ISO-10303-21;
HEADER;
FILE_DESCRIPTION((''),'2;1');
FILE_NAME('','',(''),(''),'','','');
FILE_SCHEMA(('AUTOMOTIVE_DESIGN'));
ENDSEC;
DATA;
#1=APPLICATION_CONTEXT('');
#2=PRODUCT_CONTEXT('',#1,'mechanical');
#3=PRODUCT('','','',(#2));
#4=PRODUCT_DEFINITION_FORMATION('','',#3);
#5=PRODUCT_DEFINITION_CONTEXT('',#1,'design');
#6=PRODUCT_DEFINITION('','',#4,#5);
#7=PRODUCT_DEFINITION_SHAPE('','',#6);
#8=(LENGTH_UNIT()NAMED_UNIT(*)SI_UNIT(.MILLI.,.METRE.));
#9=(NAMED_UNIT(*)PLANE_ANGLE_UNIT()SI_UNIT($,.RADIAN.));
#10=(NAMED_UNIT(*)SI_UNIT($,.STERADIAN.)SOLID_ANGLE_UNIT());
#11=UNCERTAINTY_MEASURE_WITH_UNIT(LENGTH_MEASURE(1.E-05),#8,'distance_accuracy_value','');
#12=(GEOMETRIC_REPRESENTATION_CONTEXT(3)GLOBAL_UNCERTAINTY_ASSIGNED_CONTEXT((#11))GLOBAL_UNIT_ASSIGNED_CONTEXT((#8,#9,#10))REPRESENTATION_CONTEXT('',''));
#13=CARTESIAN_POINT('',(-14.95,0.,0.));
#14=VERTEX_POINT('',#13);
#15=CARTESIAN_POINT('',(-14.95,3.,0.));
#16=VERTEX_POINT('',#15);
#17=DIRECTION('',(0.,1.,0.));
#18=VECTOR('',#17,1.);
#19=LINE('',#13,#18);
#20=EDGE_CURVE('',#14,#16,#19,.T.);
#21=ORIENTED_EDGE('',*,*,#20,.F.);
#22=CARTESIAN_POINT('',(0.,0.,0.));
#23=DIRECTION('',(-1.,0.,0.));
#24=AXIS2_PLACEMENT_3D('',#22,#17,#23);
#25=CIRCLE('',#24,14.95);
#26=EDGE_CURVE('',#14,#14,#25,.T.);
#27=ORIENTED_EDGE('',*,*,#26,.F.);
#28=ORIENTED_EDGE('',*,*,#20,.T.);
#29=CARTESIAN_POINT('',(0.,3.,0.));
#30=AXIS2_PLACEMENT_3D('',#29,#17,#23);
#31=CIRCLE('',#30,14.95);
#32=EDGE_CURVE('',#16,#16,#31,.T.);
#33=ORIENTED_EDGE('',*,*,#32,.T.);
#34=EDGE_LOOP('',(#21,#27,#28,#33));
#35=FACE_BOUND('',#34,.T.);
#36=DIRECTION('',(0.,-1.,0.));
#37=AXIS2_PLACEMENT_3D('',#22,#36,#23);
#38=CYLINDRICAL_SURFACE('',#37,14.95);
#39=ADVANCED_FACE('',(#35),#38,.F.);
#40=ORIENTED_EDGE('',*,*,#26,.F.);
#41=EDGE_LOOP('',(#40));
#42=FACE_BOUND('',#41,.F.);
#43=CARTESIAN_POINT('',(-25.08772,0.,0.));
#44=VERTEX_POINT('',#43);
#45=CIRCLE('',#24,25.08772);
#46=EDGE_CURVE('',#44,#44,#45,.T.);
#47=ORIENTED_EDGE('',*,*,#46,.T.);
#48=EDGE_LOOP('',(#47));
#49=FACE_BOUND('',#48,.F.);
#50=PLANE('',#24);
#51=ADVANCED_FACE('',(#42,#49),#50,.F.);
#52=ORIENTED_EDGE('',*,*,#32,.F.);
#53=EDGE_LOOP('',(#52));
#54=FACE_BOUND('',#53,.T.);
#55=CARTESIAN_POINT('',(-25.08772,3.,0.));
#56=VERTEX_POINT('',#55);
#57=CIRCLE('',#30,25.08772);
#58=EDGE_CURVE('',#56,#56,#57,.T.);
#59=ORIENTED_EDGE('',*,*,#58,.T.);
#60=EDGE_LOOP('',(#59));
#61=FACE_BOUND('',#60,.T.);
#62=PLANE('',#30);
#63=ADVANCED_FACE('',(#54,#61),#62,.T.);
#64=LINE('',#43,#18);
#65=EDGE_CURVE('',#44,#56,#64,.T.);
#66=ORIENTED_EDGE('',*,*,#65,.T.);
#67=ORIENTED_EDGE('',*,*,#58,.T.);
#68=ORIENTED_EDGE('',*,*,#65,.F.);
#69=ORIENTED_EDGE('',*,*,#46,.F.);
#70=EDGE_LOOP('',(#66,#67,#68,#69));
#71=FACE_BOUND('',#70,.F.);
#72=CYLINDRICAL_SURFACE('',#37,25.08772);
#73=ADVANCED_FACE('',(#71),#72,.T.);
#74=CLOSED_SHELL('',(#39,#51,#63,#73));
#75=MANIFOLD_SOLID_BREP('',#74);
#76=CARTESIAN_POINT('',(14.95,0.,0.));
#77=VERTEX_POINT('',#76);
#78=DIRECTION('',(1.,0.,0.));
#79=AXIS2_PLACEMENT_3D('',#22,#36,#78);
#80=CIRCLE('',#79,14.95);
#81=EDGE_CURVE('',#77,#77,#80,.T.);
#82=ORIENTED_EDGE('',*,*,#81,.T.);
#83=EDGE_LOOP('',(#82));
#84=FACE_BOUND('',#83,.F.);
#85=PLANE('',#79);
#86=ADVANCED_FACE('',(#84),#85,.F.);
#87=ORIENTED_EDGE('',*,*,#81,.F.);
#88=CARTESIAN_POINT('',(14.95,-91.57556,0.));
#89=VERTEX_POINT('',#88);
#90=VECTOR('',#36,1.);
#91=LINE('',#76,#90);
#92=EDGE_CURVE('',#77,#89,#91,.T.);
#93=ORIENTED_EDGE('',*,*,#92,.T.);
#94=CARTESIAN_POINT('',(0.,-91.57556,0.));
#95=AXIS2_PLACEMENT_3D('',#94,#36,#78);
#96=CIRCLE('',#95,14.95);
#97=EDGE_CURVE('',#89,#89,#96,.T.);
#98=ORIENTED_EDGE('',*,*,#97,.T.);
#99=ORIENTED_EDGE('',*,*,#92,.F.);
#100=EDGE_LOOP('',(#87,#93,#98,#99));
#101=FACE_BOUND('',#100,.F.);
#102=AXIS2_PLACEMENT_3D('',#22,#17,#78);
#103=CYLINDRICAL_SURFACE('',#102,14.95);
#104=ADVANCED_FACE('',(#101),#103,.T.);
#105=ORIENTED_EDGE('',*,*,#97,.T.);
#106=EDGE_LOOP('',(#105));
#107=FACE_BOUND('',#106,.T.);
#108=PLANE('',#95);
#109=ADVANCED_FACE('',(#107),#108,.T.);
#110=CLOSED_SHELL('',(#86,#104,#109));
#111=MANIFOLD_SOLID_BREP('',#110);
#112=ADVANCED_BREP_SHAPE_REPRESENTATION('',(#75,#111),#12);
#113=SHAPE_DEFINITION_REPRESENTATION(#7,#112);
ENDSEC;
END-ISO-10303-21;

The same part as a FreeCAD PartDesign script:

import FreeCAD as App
import Part
import Sketcher
from FreeCAD import Vector
Q = App.Units.Quantity

doc = App.newDocument("Part")
body = doc.addObject("PartDesign::Body", "Body")

# Sketch on XZ plane
sketch1 = doc.addObject("Sketcher::SketchObject", "Sketch")
body.addObject(sketch1)
sketch1.AttachmentSupport = (doc.XZ_Plane, [""])
sketch1.MapMode = "FlatFace"
sketch1.addGeometry(Part.Circle(Vector(0, 0, 0), Vector(0, 0, 1), 15), False)
sketch1.addConstraint([
    Sketcher.Constraint("Coincident", 0, 3, -1, 1),
    Sketcher.Constraint("Diameter", 0, Q("29.9 mm")),
])
pad1 = doc.addObject("PartDesign::Pad", "Pad")
body.addObject(pad1)
pad1.Profile = sketch1
pad1.Length = 91.57556
body2 = doc.addObject("PartDesign::Body", "Body001")

# Sketch on XZ plane
sketch2 = doc.addObject("Sketcher::SketchObject", "Sketch001")
body2.addObject(sketch2)
sketch2.AttachmentSupport = (doc.getObject("XZ_Plane001"), [""])
sketch2.MapMode = "FlatFace"
sketch2.addGeometry([
    Part.Circle(Vector(0, 0, 0), Vector(0, 0, 1), 25),
    Part.Circle(Vector(0, 0, 0), Vector(0, 0, 1), 15),
], False)
sketch2.addConstraint([
    Sketcher.Constraint("Coincident", 0, 3, -1, 1),
    Sketcher.Constraint("Coincident", 1, 3, -1, 1),
    Sketcher.Constraint("Diameter", 1, Q("29.9 mm")),
    Sketcher.Constraint("Diameter", 0, Q("50.17544 mm")),
])
pad2 = doc.addObject("PartDesign::Pad", "Pad001")
body2.addObject(pad2)
pad2.Profile = sketch2
pad2.Length = 3
pad2.Reversed = True

doc.recompute()
